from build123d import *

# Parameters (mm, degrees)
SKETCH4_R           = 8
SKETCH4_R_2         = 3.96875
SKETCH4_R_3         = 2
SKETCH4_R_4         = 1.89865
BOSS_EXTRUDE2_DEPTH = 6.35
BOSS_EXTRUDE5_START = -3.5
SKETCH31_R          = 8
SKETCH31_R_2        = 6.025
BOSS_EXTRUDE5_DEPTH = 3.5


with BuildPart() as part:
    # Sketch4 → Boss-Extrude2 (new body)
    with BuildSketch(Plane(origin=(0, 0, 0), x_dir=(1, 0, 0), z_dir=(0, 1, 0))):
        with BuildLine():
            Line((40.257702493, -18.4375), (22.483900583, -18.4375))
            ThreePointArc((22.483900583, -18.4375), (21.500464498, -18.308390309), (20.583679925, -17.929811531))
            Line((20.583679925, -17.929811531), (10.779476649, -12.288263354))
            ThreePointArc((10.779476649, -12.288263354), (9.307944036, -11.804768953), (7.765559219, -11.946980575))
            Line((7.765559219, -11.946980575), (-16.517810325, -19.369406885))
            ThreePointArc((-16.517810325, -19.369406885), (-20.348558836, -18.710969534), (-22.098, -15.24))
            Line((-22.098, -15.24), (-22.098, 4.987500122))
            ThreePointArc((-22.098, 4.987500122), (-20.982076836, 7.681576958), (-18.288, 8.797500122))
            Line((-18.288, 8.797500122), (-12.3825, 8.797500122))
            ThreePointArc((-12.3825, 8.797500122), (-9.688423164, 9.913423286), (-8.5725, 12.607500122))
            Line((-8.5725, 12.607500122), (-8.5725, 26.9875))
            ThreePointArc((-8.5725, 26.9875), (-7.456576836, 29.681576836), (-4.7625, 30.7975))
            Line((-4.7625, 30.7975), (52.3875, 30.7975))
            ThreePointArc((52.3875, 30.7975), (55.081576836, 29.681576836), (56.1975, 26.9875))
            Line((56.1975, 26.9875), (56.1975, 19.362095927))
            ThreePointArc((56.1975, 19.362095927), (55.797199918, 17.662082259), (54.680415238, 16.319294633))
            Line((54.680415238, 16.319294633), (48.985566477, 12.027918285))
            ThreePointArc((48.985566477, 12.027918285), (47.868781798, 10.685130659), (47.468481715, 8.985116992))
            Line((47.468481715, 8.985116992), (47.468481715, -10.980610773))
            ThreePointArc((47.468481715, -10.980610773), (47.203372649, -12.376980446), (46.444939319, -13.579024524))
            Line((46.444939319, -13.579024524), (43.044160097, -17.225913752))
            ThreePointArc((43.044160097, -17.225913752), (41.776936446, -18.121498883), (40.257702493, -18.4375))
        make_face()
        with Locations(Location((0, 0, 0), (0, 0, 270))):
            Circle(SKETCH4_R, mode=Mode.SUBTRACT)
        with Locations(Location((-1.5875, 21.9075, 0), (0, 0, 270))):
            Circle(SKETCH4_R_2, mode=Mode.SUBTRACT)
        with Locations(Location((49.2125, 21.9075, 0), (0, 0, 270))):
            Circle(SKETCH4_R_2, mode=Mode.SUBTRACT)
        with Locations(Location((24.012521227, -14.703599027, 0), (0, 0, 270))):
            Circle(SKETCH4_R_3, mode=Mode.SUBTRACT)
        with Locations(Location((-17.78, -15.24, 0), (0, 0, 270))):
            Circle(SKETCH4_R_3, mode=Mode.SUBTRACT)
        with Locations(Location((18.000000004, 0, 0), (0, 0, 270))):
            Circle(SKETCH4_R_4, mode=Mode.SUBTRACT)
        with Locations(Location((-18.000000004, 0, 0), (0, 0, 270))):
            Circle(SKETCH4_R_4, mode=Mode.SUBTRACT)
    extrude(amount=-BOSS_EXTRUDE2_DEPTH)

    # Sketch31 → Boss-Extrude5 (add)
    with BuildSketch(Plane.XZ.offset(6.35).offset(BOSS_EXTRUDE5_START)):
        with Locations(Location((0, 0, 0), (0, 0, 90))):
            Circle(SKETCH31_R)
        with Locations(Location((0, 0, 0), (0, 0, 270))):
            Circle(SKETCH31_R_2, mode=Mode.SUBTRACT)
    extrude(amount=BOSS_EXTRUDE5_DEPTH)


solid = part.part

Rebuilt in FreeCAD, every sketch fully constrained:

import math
import FreeCAD as App
import Part
import Sketcher
Q = App.Units.Quantity

doc = App.newDocument("Part")
params = doc.addObject("Spreadsheet::Sheet", "Params")
for row, (alias, value) in enumerate([
    ("sketch1_radius", "0.15 in"),
    ("sketch1_radius2", "0.17 in"),
    ("sketch1_diameter", "0.3125 in"),
    ("sketch1_width", "2.25 in"),
    ("pad1_length", "0.25 in"),
    ("pad2_length", "3.5 mm"),
], start=1):
    params.set(f"A{row}", alias)
    params.set(f"B{row}", "=" + value)
    params.setAlias(f"B{row}", alias)

body = doc.addObject("PartDesign::Body", "Body")

sketch1 = body.newObject("Sketcher::SketchObject", "Sketch")
sketch1.AttachmentSupport = (doc.getObject("XZ_Plane"), [""])
sketch1.MapMode = "FlatFace"
sketch1.addGeometry([
    Part.LineSegment(App.Vector(22.5, 18.4, 0), App.Vector(40.3, 18.4, 0)),
    Part.ArcOfCircle(Part.Circle(App.Vector(40.3, 14.6, 0), App.Vector(0, 0, 1), 3.8), math.radians(43), math.radians(90)),
    Part.LineSegment(App.Vector(43, 17.2, 0), App.Vector(46.4, 13.6, 0)),
    Part.ArcOfCircle(Part.Circle(App.Vector(43.7, 11, 0), App.Vector(0, 0, 1), 3.8), math.radians(0), math.radians(43)),
    Part.LineSegment(App.Vector(47.5, 11, 0), App.Vector(47.5, -9, 0)),
    Part.ArcOfCircle(Part.Circle(App.Vector(51.3, -9, 0), App.Vector(0, 0, 1), 3.8), math.radians(-180), math.radians(-127)),
    Part.LineSegment(App.Vector(49, -12, 0), App.Vector(54.7, -16.3, 0)),
    Part.ArcOfCircle(Part.Circle(App.Vector(52.4, -19.4, 0), App.Vector(0, 0, 1), 3.8), math.radians(0), math.radians(53)),
    Part.LineSegment(App.Vector(56.2, -19.4, 0), App.Vector(56.2, -27, 0)),
    Part.ArcOfCircle(Part.Circle(App.Vector(52.4, -27, 0), App.Vector(0, 0, 1), 3.8), math.radians(-90), math.radians(0)),
    Part.LineSegment(App.Vector(52.4, -30.8, 0), App.Vector(-4.8, -30.8, 0)),
    Part.ArcOfCircle(Part.Circle(App.Vector(-4.8, -27, 0), App.Vector(0, 0, 1), 3.8), math.radians(-180), math.radians(-90)),
    Part.LineSegment(App.Vector(-8.6, -27, 0), App.Vector(-8.6, -12.6, 0)),
    Part.ArcOfCircle(Part.Circle(App.Vector(-12.4, -12.6, 0), App.Vector(0, 0, 1), 3.8), math.radians(0), math.radians(90)),
    Part.LineSegment(App.Vector(-12.4, -8.8, 0), App.Vector(-18.3, -8.8, 0)),
    Part.ArcOfCircle(Part.Circle(App.Vector(-18.3, -5, 0), App.Vector(0, 0, 1), 3.8), math.radians(-180), math.radians(-90)),
    Part.LineSegment(App.Vector(-22.1, -5, 0), App.Vector(-22.1, 15.2, 0)),
    Part.ArcOfCircle(Part.Circle(App.Vector(-17.8, 15.2, 0), App.Vector(0, 0, 1), 4.3), math.radians(73), math.radians(180)),
    Part.LineSegment(App.Vector(-16.5, 19.4, 0), App.Vector(7.8, 11.9, 0)),
    Part.ArcOfCircle(Part.Circle(App.Vector(8.9, 15.6, 0), App.Vector(0, 0, 1), 3.8), math.radians(-107), math.radians(-60)),
    Part.LineSegment(App.Vector(10.8, 12.3, 0), App.Vector(20.6, 17.9, 0)),
    Part.ArcOfCircle(Part.Circle(App.Vector(22.5, 14.6, 0), App.Vector(0, 0, 1), 3.8), math.radians(90), math.radians(120)),
    Part.Circle(App.Vector(24, 14.7, 0), App.Vector(0, 0, 1), 2),
    Part.Circle(App.Vector(18, 0, 0), App.Vector(0, 0, 1), 1.9),
    Part.Circle(App.Vector(-17.8, 15.2, 0), App.Vector(0, 0, 1), 2),
    Part.Circle(App.Vector(0, 0, 0), App.Vector(0, 0, 1), 8),
    Part.Circle(App.Vector(-18, 0, 0), App.Vector(0, 0, 1), 1.9),
    Part.Circle(App.Vector(49.2, -21.9, 0), App.Vector(0, 0, 1), 4),
    Part.Circle(App.Vector(-1.6, -21.9, 0), App.Vector(0, 0, 1), 4),
], False)
sketch1.addConstraint([
    Sketcher.Constraint("Tangent", 0, 2, 1, 2),
    Sketcher.Constraint("Tangent", 1, 1, 2, 1),
    Sketcher.Constraint("Tangent", 2, 2, 3, 2),
    Sketcher.Constraint("Tangent", 3, 1, 4, 1),
    Sketcher.Constraint("Tangent", 4, 2, 5, 1),
    Sketcher.Constraint("Tangent", 5, 2, 6, 1),
    Sketcher.Constraint("Tangent", 6, 2, 7, 2),
    Sketcher.Constraint("Tangent", 7, 1, 8, 1),
    Sketcher.Constraint("Tangent", 8, 2, 9, 2),
    Sketcher.Constraint("Tangent", 9, 1, 10, 1),
    Sketcher.Constraint("Tangent", 10, 2, 11, 2),
    Sketcher.Constraint("Tangent", 11, 1, 12, 1),
    Sketcher.Constraint("Tangent", 12, 2, 13, 1),
    Sketcher.Constraint("Tangent", 13, 2, 14, 1),
    Sketcher.Constraint("Tangent", 14, 2, 15, 2),
    Sketcher.Constraint("Tangent", 15, 1, 16, 1),
    Sketcher.Constraint("Tangent", 16, 2, 17, 2),
    Sketcher.Constraint("Tangent", 17, 1, 18, 1),
    Sketcher.Constraint("Tangent", 18, 2, 19, 1),
    Sketcher.Constraint("Tangent", 19, 2, 20, 1),
    Sketcher.Constraint("Tangent", 20, 2, 21, 2),
    Sketcher.Constraint("Tangent", 21, 1, 0, 1),
    Sketcher.Constraint("Horizontal", 0),
    Sketcher.Constraint("Vertical", 4),
    Sketcher.Constraint("Vertical", 8),
    Sketcher.Constraint("Horizontal", 10),
    Sketcher.Constraint("Vertical", 12),
    Sketcher.Constraint("Horizontal", 14),
    Sketcher.Constraint("Vertical", 16),
    Sketcher.Constraint("Coincident", 25, 3, -1, 1),
    Sketcher.Constraint("Coincident", 24, 3, 17, 3),
    Sketcher.Constraint("Equal", 1, 3),
    Sketcher.Constraint("Equal", 3, 5),
    Sketcher.Constraint("Equal", 5, 7),
    Sketcher.Constraint("Equal", 7, 9),
    Sketcher.Constraint("Equal", 9, 11),
    Sketcher.Constraint("Equal", 11, 13),
    Sketcher.Constraint("Equal", 13, 15),
    Sketcher.Constraint("Equal", 15, 19),
    Sketcher.Constraint("Equal", 19, 21),
    Sketcher.Constraint("Equal", 22, 24),
    Sketcher.Constraint("Equal", 23, 26),
    Sketcher.Constraint("Equal", 27, 28),
    Sketcher.Constraint("Symmetric", 23, 3, 26, 3, -1, 1),
    Sketcher.Constraint("PointOnObject", 23, 3, -1),
    Sketcher.Constraint("Horizontal", 27, 3, 28, 3),
    Sketcher.Constraint("Radius", 1, Q("0.15 in")),
    Sketcher.Constraint("Radius", 17, Q("0.17 in")),
    Sketcher.Constraint("Diameter", 27, Q("0.3125 in")),
    Sketcher.Constraint("Angle", 2, Q("-47 deg")),
    Sketcher.Constraint("Angle", 6, Q("-37 deg")),
    Sketcher.Constraint("Diameter", 23, Q("0.1495 in")),
    Sketcher.Constraint("DistanceX", 10, 2, 10, 1, Q("2.25 in")),
    Sketcher.Constraint("DistanceX", 17, 3, -1, 1, Q("0.7 in")),
    Sketcher.Constraint("DistanceY", -1, 1, 17, 3, Q("0.6 in")),
    Sketcher.Constraint("DistanceY", 9, 3, 27, 3, Q("0.2 in")),
    Sketcher.Constraint("Diameter", 22, 4.0),
    Sketcher.Constraint("Diameter", 25, 16.0),
    Sketcher.Constraint("DistanceX", 14, 2, 14, 1, Q("0.2325 in")),
    Sketcher.Constraint("DistanceY", 9, 3, -1, 1, Q("1.0625 in")),
    Sketcher.Constraint("DistanceX", -1, 1, 27, 3, Q("1.9375 in")),
    Sketcher.Constraint("DistanceX", 28, 3, -1, 1, Q("0.0625 in")),
    Sketcher.Constraint("DistanceX", 0, 1, 0, 2, 17.773802),
    Sketcher.Constraint("DistanceY", 12, 1, 12, 2, 14.38),
    Sketcher.Constraint("DistanceY", -1, 1, 1, 3, 14.6275),
    Sketcher.Constraint("DistanceX", -1, 1, 21, 3, 22.483901),
    Sketcher.Constraint("DistanceY", -1, 1, 22, 3, 14.703599),
    Sketcher.Constraint("DistanceX", -1, 1, 23, 3, 18.0),
    Sketcher.Constraint("Distance", 2, 4.986492),
    Sketcher.Constraint("Distance", 18, 25.392409),
    Sketcher.Constraint("DistanceY", 4, 2, 4, 1, 19.965728),
    Sketcher.Constraint("DistanceX", -1, 1, 22, 3, 24.012521),
    Sketcher.Constraint("DistanceX", 17, 1, -1, 1, 16.51781),
])
sketch1.setExpression("Constraints[46]", "Params.sketch1_radius")
sketch1.setExpression("Constraints[47]", "Params.sketch1_radius2")
sketch1.setExpression("Constraints[48]", "Params.sketch1_diameter")
sketch1.setExpression("Constraints[52]", "Params.sketch1_width")
pad1 = body.newObject("PartDesign::Pad", "Pad")
pad1.Profile = sketch1
pad1.setExpression("Length", "Params.pad1_length")

sketch2 = body.newObject("Sketcher::SketchObject", "Sketch001")
sketch2.AttachmentSupport = (doc.getObject("XZ_Plane"), [""])
sketch2.MapMode = "FlatFace"
sketch2.AttachmentOffset = App.Placement(App.Vector(0, 0, 2.85), App.Rotation())
sketch2.addGeometry([
    Part.Circle(App.Vector(0, 0, 0), App.Vector(0, 0, 1), 8),
    Part.Circle(App.Vector(0, 0, 0), App.Vector(0, 0, 1), 6),
], False)
sketch2.addConstraint([
    Sketcher.Constraint("Coincident", 0, 3, -1, 1),
    Sketcher.Constraint("Coincident", 1, 3, -1, 1),
    Sketcher.Constraint("Diameter", 0, 16.0),
    Sketcher.Constraint("Diameter", 1, 12.05),
])
pad2 = body.newObject("PartDesign::Pad", "Pad001")
pad2.Profile = sketch2
pad2.setExpression("Length", "Params.pad2_length")

doc.recompute()
